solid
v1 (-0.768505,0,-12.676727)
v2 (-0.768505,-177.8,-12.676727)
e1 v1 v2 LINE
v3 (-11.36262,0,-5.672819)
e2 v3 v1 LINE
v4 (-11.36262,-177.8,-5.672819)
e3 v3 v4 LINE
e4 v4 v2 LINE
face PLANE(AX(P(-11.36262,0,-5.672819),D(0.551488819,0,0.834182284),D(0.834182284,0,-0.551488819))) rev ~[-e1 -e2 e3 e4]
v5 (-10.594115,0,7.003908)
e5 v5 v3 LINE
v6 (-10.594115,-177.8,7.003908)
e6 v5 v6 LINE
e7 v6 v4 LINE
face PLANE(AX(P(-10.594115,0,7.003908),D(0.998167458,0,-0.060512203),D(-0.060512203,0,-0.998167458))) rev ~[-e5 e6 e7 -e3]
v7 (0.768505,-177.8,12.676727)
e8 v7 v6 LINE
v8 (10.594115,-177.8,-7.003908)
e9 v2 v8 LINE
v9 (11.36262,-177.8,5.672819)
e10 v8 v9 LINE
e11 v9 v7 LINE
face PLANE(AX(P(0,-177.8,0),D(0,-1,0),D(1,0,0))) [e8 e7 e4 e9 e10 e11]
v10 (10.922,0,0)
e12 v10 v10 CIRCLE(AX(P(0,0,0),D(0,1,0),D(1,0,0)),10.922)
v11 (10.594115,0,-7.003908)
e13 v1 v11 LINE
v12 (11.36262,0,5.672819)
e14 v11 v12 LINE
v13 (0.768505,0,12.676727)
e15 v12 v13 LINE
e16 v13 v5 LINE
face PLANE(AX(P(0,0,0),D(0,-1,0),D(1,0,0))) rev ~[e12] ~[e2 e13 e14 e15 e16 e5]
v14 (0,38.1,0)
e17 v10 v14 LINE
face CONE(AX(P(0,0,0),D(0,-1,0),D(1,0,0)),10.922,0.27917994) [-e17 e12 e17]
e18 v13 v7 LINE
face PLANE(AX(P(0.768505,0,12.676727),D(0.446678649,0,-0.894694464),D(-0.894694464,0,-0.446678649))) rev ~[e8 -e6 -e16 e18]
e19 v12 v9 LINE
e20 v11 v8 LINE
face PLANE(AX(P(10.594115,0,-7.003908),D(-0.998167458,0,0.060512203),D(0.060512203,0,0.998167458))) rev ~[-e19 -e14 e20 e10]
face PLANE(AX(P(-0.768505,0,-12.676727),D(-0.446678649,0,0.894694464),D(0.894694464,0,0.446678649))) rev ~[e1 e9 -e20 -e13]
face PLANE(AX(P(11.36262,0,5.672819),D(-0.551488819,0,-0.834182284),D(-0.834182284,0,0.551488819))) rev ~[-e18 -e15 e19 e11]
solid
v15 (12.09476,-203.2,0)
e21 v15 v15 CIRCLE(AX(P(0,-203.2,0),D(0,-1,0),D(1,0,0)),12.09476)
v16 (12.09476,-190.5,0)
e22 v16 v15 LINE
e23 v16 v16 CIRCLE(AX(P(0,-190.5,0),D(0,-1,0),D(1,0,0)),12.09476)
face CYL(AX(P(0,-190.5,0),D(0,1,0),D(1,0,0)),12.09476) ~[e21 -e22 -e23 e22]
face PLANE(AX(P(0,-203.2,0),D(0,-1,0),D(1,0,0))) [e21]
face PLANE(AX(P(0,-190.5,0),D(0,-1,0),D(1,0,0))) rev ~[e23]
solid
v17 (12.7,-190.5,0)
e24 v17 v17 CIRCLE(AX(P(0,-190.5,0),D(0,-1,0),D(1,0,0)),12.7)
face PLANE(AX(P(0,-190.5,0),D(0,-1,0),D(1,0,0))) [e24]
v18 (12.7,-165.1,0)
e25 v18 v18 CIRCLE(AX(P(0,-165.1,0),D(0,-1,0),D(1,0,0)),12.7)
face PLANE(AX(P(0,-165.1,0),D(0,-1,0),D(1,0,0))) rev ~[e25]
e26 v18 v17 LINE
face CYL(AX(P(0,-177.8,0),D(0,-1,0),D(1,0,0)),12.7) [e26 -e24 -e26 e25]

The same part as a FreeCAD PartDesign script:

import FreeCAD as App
import Part
import Sketcher
Q = App.Units.Quantity


def add_polygon(sketch, points):
    """Adds a closed chain of lines whose ends are joined by coincident constraints."""
    first, n = sketch.GeometryCount, len(points)
    for a, b in zip(points, points[1:] + points[:1]):
        sketch.addGeometry(Part.LineSegment(App.Vector(*a, 0), App.Vector(*b, 0)), False)
    for i in range(n):
        sketch.addConstraint(Sketcher.Constraint("Coincident", first + i, 2, first + (i + 1) % n, 1))

doc = App.newDocument("Part")
body = doc.addObject("PartDesign::Body", "Body")

# Sketch on XZ plane
sketch1 = doc.addObject("Sketcher::SketchObject", "Sketch")
body.addObject(sketch1)
sketch1.AttachmentSupport = (doc.XZ_Plane, [""])
sketch1.MapMode = "FlatFace"
add_polygon(sketch1, [(-0.768505, -12.676727), (10.594115, -7.003908), (11.36262, 5.672819), (0.768505, 12.676727), (-10.594115, 7.003908), (-11.36262, -5.672819)])  # lines 0-5
sketch1.addConstraint(Sketcher.Constraint("Symmetric", 0, 2, 3, 2, -1, 1))
sketch1.addConstraint(Sketcher.Constraint("Symmetric", 1, 2, 4, 2, -1, 1))
sketch1.addConstraint(Sketcher.Constraint("Symmetric", 2, 2, 5, 2, -1, 1))
sketch1.addConstraint(Sketcher.Constraint("Equal", 0, 1))
sketch1.addConstraint(Sketcher.Constraint("Equal", 1, 2))
sketch1.addConstraint(Sketcher.Constraint("Distance", 0, Q("0.5 in")))
sketch1.addConstraint(Sketcher.Constraint("DistanceX", -1, 1, 1, 2, Q("11.36262 mm")))
sketch1.addConstraint(Sketcher.Constraint("DistanceY", -1, 1, 1, 2, Q("5.672819 mm")))
sketch1.addConstraint(Sketcher.Constraint("DistanceX", 2, 2, 0, 2, Q("9.82561 mm")))
pad1 = doc.addObject("PartDesign::Pad", "Pad")
body.addObject(pad1)
pad1.Profile = sketch1
pad1.Length = Q("7 in")

# Sketch on XY plane
sketch2 = doc.addObject("Sketcher::SketchObject", "Sketch001")
body.addObject(sketch2)
sketch2.AttachmentSupport = (doc.XY_Plane, [""])
sketch2.MapMode = "FlatFace"
add_polygon(sketch2, [(0, 38.1), (0, 0), (10.922, 0)])  # lines 0-2
sketch2.addConstraint(Sketcher.Constraint("Vertical", 0))
sketch2.addConstraint(Sketcher.Constraint("Horizontal", 1))
sketch2.addConstraint(Sketcher.Constraint("Coincident", 0, 2, -1, 1))
sketch2.addConstraint(Sketcher.Constraint("DistanceY", 0, 2, 0, 1, Q("1.5 in")))
sketch2.addConstraint(Sketcher.Constraint("DistanceX", 1, 1, 1, 2, Q("0.43 in")))
revolution = doc.addObject("PartDesign::Revolution", "Revolution")
body.addObject(revolution)
revolution.Profile = sketch2
revolution.ReferenceAxis = (sketch2, ["V_Axis"])
revolution.Angle = 360
body2 = doc.addObject("PartDesign::Body", "Body001")

# Sketch on XZ plane
sketch3 = doc.addObject("Sketcher::SketchObject", "Sketch002")
body2.addObject(sketch3)
sketch3.AttachmentSupport = (doc.getObject("XZ_Plane001"), [""])
sketch3.MapMode = "FlatFace"
sketch3.AttachmentOffset = App.Placement(App.Vector(0, 0, 7 * 25.4), App.Rotation())
sketch3.addGeometry(Part.Circle(App.Vector(0, 0, 0), App.Vector(0, 0, 1), 12.7), False)
sketch3.addConstraint(Sketcher.Constraint("Coincident", 0, 3, -1, 1))
sketch3.addConstraint(Sketcher.Constraint("Diameter", 0, Q("1 in")))
pad2 = doc.addObject("PartDesign::Pad", "Pad001")
body2.addObject(pad2)
pad2.Profile = sketch3
pad2.Length = Q("1 in")
pad2.Midplane = True
body3 = doc.addObject("PartDesign::Body", "Body002")

# Sketch on XZ plane
sketch4 = doc.addObject("Sketcher::SketchObject", "Sketch003")
body3.addObject(sketch4)
sketch4.AttachmentSupport = (doc.getObject("XZ_Plane002"), [""])
sketch4.MapMode = "FlatFace"
sketch4.AttachmentOffset = App.Placement(App.Vector(0, 0, 7.5 * 25.4), App.Rotation())
sketch4.addGeometry(Part.Circle(App.Vector(0, 0, 0), App.Vector(0, 0, 1), 12.09476), False)
sketch4.addConstraint(Sketcher.Constraint("Coincident", 0, 3, -1, 1))
sketch4.addConstraint(Sketcher.Constraint("Diameter", 0, Q("24.18952 mm")))
pad3 = doc.addObject("PartDesign::Pad", "Pad002")
body3.addObject(pad3)
pad3.Profile = sketch4
pad3.Length = Q("0.5 in")

doc.recompute()
